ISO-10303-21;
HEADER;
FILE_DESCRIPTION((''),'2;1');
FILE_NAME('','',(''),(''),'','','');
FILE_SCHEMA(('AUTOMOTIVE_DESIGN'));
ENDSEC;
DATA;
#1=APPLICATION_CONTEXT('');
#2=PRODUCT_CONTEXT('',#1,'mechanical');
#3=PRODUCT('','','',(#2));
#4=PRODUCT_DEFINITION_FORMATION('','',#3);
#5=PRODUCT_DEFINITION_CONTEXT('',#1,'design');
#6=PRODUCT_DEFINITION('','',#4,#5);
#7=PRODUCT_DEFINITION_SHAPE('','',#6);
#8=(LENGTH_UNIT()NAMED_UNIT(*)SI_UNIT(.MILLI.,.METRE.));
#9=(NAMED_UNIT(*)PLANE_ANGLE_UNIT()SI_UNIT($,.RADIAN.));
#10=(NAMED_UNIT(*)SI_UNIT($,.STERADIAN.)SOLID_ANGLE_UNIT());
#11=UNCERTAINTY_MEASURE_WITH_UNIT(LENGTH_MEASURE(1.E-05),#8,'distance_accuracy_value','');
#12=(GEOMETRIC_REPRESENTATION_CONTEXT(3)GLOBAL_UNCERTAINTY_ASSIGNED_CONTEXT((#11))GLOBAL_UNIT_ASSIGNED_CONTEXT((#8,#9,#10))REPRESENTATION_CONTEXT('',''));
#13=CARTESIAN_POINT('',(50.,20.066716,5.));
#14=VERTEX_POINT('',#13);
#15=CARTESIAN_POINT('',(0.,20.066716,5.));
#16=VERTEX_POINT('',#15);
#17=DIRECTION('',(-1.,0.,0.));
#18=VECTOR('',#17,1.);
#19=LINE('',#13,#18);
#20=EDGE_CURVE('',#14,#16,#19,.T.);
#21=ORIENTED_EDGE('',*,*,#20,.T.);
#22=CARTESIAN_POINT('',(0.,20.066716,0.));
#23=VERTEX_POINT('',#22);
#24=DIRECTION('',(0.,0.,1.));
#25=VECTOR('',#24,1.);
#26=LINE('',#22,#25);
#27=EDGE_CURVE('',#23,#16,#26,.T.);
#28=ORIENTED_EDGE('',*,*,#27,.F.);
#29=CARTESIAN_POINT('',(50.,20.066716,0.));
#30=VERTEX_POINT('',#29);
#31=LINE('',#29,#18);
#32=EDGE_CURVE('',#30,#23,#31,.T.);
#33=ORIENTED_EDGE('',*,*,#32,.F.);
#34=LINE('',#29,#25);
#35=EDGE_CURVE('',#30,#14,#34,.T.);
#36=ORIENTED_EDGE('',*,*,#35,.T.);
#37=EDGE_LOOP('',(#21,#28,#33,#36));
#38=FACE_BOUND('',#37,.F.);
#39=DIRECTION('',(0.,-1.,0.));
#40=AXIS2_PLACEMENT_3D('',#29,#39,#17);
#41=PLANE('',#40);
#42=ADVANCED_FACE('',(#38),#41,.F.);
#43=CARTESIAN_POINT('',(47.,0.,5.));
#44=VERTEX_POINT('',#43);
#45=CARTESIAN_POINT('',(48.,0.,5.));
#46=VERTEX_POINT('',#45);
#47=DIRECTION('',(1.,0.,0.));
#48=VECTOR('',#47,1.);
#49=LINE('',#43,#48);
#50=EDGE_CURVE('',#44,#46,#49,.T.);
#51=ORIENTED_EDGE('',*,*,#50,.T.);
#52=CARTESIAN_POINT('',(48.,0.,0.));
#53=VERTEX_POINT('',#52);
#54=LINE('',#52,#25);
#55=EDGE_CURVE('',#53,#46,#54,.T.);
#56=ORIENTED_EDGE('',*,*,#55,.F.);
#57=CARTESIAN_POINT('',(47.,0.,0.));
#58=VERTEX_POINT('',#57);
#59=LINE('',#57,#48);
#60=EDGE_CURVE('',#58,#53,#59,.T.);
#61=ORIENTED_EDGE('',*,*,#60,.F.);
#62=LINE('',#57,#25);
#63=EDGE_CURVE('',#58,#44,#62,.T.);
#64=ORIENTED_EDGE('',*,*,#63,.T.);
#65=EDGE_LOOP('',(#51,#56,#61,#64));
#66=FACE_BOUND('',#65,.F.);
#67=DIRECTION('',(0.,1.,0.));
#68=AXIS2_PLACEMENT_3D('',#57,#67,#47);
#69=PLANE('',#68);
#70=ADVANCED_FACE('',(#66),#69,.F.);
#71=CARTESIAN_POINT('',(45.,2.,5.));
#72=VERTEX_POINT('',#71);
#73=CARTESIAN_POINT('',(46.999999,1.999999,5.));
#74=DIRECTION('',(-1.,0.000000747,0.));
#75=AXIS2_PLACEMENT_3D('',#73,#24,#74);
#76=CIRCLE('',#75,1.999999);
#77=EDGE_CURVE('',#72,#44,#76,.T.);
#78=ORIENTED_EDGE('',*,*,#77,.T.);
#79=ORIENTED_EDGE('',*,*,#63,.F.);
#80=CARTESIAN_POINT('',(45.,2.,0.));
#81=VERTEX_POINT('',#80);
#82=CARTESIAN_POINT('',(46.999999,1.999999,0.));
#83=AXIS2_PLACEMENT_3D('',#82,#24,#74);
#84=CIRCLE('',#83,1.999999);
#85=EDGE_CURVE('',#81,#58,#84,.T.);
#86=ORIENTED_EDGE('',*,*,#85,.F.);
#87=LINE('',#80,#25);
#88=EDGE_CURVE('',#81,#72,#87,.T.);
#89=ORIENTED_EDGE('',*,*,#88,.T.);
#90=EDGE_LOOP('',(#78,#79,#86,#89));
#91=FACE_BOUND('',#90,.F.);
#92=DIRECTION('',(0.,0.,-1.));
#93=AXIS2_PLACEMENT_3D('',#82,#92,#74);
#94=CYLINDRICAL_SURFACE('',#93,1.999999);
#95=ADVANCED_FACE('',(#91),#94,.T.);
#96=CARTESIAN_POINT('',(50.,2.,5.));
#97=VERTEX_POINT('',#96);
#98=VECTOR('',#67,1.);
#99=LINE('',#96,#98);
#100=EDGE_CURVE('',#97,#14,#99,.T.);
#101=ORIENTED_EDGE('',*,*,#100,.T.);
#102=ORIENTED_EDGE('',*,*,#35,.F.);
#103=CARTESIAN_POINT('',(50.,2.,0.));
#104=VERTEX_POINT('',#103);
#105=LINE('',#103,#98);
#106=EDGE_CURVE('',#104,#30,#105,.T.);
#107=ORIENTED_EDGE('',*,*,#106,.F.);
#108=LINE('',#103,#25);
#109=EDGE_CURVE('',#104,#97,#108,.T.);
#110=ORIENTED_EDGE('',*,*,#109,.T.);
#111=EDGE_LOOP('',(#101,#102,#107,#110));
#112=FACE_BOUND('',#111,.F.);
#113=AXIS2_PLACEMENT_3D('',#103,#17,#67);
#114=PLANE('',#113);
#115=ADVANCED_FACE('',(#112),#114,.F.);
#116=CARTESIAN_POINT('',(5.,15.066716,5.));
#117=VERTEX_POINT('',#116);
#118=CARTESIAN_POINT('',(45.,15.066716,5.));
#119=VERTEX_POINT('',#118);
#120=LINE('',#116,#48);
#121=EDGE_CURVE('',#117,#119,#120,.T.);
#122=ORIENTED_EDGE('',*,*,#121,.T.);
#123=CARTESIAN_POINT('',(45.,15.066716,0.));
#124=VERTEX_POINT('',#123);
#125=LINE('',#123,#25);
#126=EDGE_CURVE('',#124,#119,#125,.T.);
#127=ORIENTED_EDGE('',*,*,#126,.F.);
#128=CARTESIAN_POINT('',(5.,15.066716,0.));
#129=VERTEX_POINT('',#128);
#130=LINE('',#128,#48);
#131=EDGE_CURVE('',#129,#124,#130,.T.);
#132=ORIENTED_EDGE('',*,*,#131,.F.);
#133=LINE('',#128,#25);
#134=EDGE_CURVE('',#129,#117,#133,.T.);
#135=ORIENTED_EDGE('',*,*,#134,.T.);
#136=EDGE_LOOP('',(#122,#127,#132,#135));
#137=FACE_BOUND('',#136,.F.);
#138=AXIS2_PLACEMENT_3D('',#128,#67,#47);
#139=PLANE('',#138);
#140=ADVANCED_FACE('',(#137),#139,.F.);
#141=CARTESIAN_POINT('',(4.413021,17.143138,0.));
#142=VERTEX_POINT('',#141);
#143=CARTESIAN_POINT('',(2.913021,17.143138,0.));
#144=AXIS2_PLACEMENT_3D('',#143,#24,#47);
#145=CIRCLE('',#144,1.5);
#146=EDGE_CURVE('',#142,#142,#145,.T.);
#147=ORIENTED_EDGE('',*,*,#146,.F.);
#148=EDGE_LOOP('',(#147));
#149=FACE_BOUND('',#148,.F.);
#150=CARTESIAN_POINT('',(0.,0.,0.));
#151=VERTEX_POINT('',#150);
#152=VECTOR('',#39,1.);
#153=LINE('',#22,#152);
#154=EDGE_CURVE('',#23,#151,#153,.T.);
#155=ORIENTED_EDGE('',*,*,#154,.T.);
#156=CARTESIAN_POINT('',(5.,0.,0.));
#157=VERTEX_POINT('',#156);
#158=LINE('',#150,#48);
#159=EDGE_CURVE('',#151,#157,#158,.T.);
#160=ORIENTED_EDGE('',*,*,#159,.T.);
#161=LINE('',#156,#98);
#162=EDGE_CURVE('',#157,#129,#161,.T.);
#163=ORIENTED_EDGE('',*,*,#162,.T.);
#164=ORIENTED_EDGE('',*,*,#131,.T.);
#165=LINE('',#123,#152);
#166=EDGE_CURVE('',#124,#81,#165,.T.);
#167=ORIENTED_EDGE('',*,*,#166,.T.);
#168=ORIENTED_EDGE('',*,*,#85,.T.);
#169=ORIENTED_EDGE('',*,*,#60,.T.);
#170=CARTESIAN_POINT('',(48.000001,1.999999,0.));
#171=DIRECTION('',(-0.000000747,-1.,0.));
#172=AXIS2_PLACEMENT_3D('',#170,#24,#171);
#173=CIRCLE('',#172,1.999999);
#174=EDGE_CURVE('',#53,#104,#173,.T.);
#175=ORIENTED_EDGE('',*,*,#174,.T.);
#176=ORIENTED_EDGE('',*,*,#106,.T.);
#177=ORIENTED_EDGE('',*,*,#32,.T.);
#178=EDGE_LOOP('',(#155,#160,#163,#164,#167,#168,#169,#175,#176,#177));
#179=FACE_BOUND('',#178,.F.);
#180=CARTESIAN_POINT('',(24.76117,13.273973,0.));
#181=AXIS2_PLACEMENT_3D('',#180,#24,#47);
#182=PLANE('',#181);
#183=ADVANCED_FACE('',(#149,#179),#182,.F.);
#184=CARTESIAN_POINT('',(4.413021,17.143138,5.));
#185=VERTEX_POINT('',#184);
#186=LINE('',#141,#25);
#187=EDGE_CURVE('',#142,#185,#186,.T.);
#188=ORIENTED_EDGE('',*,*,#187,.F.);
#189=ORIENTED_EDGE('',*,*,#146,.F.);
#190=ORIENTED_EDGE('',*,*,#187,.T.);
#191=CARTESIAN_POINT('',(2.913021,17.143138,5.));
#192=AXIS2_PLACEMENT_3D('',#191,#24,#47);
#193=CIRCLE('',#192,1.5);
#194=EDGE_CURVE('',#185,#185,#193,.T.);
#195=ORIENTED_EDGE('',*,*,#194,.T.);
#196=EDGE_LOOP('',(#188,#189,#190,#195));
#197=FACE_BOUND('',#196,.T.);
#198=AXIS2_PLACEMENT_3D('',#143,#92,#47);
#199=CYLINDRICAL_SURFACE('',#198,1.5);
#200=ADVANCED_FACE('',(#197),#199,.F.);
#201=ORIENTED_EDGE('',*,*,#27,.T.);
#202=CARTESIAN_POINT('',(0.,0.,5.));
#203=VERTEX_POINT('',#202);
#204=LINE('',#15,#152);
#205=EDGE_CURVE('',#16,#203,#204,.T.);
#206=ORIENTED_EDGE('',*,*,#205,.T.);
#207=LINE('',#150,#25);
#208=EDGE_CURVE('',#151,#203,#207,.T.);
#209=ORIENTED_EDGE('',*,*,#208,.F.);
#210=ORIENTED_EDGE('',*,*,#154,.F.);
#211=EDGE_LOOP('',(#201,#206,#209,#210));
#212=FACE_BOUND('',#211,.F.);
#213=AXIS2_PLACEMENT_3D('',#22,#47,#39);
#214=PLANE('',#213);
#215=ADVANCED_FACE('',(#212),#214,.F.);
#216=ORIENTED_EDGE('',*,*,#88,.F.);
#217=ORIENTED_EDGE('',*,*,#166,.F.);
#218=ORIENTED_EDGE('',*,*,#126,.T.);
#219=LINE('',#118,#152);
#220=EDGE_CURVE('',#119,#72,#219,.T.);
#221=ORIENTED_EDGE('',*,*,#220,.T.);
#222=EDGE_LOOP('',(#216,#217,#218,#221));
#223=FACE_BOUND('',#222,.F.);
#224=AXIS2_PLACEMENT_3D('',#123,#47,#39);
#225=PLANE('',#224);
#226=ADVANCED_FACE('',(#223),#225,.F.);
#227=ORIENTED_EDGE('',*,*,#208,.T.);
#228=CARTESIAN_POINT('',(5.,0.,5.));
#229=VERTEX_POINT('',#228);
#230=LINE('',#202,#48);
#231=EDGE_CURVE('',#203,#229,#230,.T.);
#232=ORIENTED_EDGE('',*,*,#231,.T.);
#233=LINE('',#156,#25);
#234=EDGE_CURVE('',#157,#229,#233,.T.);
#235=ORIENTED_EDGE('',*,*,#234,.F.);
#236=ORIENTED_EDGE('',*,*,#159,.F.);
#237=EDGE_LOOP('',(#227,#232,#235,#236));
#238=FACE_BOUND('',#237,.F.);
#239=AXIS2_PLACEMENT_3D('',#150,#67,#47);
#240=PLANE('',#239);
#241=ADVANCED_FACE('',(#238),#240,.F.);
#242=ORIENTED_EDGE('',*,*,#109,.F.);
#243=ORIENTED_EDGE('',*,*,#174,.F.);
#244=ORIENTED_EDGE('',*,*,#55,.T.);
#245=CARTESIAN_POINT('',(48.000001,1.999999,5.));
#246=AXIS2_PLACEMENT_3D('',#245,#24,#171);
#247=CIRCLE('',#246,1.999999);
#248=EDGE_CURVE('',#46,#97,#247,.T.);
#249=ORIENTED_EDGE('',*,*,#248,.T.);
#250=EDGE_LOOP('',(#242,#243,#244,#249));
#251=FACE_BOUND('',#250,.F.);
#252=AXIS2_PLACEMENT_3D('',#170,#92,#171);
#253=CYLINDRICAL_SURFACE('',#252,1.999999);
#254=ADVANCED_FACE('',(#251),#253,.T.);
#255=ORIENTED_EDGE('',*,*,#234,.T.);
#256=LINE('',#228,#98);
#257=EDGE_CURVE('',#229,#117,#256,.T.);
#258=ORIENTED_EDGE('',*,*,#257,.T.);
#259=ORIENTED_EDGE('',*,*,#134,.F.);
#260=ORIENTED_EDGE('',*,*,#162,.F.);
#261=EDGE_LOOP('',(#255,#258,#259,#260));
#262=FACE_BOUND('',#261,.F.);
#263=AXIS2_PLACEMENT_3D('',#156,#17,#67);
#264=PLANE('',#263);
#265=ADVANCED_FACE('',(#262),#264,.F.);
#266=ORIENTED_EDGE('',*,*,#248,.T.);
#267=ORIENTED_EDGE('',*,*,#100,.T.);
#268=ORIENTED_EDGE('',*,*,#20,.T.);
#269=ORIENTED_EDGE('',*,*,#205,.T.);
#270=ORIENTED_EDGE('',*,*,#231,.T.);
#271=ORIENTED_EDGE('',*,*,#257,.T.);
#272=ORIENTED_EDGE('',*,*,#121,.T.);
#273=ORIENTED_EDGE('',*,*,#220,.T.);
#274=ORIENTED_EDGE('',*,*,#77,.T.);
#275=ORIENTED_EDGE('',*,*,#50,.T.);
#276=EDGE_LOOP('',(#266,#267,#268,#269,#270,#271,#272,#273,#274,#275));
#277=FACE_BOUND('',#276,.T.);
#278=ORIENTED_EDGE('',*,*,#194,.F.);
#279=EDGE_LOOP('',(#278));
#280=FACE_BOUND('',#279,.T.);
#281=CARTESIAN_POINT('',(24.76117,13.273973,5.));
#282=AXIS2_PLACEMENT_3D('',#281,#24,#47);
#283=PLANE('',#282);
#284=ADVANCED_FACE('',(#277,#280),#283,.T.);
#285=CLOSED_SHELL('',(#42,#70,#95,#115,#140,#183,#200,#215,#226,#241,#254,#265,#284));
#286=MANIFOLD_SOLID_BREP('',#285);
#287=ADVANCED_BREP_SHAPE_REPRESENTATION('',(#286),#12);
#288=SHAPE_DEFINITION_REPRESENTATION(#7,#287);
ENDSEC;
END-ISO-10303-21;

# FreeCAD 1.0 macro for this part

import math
import FreeCAD as App
import Part
import Sketcher

doc = App.newDocument("Part")
body = doc.addObject("PartDesign::Body", "Body")

# Sketch on XY plane
sketch1 = doc.addObject("Sketcher::SketchObject", "Sketch")
body.addObject(sketch1)
sketch1.AttachmentSupport = (doc.XY_Plane, [""])
sketch1.MapMode = "FlatFace"
sketch1.addGeometry([
    Part.LineSegment(App.Vector(0, 20.1, 0), App.Vector(0, 0, 0)),  # 0
    Part.LineSegment(App.Vector(0, 0, 0), App.Vector(5, 0, 0)),  # 1
    Part.LineSegment(App.Vector(5, 0, 0), App.Vector(5, 15.1, 0)),  # 2
    Part.LineSegment(App.Vector(5, 15.1, 0), App.Vector(45, 15.1, 0)),  # 3
    Part.LineSegment(App.Vector(45, 15.1, 0), App.Vector(45, 2, 0)),  # 4
    Part.ArcOfCircle(Part.Circle(App.Vector(47, 2, 0), App.Vector(0, 0, 1), 2), math.radians(180), math.radians(270)),  # 5
    Part.LineSegment(App.Vector(47, 0, 0), App.Vector(48, 0, 0)),  # 6
    Part.ArcOfCircle(Part.Circle(App.Vector(48, 2, 0), App.Vector(0, 0, 1), 2), math.radians(-90), math.radians(0)),  # 7
    Part.LineSegment(App.Vector(50, 2, 0), App.Vector(50, 20.1, 0)),  # 8
    Part.LineSegment(App.Vector(50, 20.1, 0), App.Vector(0, 20.1, 0)),  # 9
    Part.Circle(App.Vector(2.9, 17.1, 0), App.Vector(0, 0, 1), 1.5),  # 10
], False)
sketch1.addConstraint([
    Sketcher.Constraint("Coincident", 0, 2, 1, 1),
    Sketcher.Constraint("Coincident", 1, 2, 2, 1),
    Sketcher.Constraint("Coincident", 2, 2, 3, 1),
    Sketcher.Constraint("Coincident", 3, 2, 4, 1),
    Sketcher.Constraint("Tangent", 4, 2, 5, 1),
    Sketcher.Constraint("Tangent", 5, 2, 6, 1),
    Sketcher.Constraint("Tangent", 6, 2, 7, 1),
    Sketcher.Constraint("Tangent", 7, 2, 8, 1),
    Sketcher.Constraint("Coincident", 8, 2, 9, 1),
    Sketcher.Constraint("Coincident", 9, 2, 0, 1),
    Sketcher.Constraint("Vertical", 0),
    Sketcher.Constraint("Horizontal", 1),
    Sketcher.Constraint("Vertical", 2),
    Sketcher.Constraint("Horizontal", 3),
    Sketcher.Constraint("Vertical", 4),
    Sketcher.Constraint("Horizontal", 6),
    Sketcher.Constraint("Vertical", 8),
    Sketcher.Constraint("Horizontal", 9),
    Sketcher.Constraint("Coincident", 0, 2, -1, 1),
    Sketcher.Constraint("Equal", 5, 7),
    Sketcher.Constraint("PointOnObject", 5, 2, -1),
    Sketcher.Constraint("Diameter", 10, 3.0),
    Sketcher.Constraint("Radius", 5, 1.999999),
    Sketcher.Constraint("DistanceX", 1, 1, 1, 2, 5.0),
    Sketcher.Constraint("DistanceX", 3, 1, 3, 2, 40.0),
    Sketcher.Constraint("DistanceX", 6, 1, 6, 2, 1.0),
    Sketcher.Constraint("DistanceY", 3, 2, 8, 2, 5.0),
    Sketcher.Constraint("DistanceY", 0, 2, 0, 1, 20.066716),
    Sketcher.Constraint("DistanceX", -1, 1, 10, 3, 2.913021),
    Sketcher.Constraint("DistanceY", -1, 1, 10, 3, 17.143138),
])
pad1 = doc.addObject("PartDesign::Pad", "Pad")
body.addObject(pad1)
pad1.Profile = sketch1
pad1.Length = 5

doc.recompute()
